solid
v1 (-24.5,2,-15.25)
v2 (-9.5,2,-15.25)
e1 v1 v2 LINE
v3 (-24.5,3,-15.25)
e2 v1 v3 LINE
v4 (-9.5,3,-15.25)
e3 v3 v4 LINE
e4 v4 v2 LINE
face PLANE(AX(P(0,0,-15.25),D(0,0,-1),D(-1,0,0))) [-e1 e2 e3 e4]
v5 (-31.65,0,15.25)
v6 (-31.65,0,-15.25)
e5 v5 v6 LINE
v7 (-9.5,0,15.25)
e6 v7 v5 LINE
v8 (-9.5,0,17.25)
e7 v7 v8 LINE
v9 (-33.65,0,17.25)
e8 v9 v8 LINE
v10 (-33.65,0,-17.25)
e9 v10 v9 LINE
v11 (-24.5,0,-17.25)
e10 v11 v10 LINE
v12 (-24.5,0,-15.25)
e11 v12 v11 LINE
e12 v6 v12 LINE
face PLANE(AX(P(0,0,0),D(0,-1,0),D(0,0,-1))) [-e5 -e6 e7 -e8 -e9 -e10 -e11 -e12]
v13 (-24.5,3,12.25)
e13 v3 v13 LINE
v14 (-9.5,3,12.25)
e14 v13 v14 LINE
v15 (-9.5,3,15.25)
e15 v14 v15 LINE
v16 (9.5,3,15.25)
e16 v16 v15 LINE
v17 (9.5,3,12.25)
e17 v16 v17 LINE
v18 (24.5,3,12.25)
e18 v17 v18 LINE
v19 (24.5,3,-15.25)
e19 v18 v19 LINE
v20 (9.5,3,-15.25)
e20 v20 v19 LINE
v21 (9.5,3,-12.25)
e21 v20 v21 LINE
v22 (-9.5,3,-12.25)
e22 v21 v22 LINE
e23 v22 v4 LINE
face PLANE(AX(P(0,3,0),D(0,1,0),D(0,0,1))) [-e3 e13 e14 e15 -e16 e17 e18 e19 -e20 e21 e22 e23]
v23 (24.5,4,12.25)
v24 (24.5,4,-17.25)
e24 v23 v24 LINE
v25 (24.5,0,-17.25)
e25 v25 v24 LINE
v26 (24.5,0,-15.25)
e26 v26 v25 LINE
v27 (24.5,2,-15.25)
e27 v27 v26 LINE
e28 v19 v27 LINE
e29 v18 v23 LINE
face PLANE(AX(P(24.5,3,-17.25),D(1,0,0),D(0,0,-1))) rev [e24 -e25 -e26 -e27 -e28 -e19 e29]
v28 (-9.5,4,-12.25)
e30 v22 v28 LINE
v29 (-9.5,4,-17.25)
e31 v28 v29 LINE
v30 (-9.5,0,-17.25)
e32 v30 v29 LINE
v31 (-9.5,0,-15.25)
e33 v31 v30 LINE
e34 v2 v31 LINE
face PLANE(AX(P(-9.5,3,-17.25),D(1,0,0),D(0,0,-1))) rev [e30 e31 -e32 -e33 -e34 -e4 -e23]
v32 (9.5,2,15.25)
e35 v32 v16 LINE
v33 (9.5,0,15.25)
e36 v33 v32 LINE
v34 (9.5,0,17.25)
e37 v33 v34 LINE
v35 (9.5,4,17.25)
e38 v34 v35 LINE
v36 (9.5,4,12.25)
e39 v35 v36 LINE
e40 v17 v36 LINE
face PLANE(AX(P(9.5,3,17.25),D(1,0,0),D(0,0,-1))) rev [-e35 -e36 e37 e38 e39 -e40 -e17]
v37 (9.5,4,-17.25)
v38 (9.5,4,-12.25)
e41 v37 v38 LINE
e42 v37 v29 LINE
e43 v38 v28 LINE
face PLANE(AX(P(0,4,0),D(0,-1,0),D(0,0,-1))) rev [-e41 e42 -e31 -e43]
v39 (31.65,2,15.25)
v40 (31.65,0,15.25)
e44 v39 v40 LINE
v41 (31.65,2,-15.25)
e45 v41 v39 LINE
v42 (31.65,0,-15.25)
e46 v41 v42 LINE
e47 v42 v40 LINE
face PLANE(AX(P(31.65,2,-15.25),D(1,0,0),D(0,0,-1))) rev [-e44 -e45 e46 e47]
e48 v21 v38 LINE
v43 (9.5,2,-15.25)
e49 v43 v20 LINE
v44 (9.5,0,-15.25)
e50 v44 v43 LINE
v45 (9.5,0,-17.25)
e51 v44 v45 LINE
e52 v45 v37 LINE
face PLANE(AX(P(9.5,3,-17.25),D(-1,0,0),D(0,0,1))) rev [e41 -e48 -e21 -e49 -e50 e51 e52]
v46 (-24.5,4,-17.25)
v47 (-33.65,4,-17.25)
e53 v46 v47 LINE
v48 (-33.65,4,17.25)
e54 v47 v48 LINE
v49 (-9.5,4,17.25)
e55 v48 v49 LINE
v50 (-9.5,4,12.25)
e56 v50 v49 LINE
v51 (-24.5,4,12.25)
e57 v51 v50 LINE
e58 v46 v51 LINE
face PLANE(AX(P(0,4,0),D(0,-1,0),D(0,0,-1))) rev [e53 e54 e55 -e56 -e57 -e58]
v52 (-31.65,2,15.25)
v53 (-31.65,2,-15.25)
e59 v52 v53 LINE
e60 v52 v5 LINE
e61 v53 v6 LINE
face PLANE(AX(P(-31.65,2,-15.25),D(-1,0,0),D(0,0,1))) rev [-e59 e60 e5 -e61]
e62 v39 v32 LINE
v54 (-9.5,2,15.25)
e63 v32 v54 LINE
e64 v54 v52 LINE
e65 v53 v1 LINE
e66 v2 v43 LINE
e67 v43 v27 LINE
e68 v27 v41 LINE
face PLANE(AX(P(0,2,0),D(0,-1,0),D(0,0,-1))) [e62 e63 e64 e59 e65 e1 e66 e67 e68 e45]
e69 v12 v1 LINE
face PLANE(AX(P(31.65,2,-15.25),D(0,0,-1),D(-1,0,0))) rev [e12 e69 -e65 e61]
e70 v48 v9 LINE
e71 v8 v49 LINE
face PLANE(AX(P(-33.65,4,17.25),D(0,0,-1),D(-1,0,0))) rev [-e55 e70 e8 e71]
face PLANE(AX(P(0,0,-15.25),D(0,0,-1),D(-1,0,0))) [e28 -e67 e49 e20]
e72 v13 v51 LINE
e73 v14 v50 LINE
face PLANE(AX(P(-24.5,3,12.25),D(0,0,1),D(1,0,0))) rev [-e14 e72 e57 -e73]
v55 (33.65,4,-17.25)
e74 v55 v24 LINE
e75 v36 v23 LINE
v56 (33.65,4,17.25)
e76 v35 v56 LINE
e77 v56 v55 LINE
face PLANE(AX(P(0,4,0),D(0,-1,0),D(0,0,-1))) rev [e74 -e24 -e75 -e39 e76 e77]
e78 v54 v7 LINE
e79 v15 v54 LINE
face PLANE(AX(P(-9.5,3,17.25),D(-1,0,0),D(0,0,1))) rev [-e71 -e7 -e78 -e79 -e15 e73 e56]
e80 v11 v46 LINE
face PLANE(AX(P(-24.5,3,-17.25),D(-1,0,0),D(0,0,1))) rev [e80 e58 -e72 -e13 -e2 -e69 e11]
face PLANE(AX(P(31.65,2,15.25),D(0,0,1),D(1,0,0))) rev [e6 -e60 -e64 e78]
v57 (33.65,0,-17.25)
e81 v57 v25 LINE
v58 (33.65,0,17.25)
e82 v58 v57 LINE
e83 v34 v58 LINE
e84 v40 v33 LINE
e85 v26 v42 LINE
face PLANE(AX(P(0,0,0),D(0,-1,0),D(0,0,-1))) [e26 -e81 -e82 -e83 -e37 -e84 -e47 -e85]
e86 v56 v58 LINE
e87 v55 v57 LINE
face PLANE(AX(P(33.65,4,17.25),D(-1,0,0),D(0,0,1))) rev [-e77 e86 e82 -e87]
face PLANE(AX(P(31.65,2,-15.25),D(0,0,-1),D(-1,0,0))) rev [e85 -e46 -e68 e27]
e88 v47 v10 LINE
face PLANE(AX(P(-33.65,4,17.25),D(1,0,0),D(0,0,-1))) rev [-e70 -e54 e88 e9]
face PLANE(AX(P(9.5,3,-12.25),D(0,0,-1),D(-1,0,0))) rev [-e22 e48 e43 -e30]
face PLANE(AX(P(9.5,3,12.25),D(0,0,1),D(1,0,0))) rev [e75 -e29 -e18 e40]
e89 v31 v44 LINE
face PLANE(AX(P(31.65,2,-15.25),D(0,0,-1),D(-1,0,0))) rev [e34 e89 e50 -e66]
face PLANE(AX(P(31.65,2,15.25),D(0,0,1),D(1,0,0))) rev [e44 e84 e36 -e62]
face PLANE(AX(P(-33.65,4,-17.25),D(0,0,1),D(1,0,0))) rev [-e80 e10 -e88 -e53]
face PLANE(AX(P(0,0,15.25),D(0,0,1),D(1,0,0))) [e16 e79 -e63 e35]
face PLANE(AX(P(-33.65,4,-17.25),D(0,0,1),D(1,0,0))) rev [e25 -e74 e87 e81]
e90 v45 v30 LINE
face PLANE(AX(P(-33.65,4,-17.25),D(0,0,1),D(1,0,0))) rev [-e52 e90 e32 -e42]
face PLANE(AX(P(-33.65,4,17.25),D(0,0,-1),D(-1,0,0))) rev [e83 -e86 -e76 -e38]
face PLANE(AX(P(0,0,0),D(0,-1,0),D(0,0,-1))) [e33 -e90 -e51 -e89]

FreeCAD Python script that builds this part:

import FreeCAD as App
import Part
import Sketcher
from FreeCAD import Vector
Q = App.Units.Quantity

doc = App.newDocument("Part")
body = doc.addObject("PartDesign::Body", "Body")

sketch1 = doc.addObject("Sketcher::SketchObject", "Sketch")
body.addObject(sketch1)
sketch1.AttachmentSupport = (doc.XZ_Plane, [""])
sketch1.MapMode = "FlatFace"
sketch1.addGeometry([
    Part.LineSegment(Vector(-34, -17, 0), Vector(-34, 17, 0)),
    Part.LineSegment(Vector(-34, 17, 0), Vector(34, 17, 0)),
    Part.LineSegment(Vector(34, 17, 0), Vector(34, -17, 0)),
    Part.LineSegment(Vector(34, -17, 0), Vector(-34, -17, 0)),
], False)
sketch1.addConstraint([
    Sketcher.Constraint("Coincident", 0, 2, 1, 1),
    Sketcher.Constraint("Coincident", 1, 2, 2, 1),
    Sketcher.Constraint("Coincident", 2, 2, 3, 1),
    Sketcher.Constraint("Coincident", 3, 2, 0, 1),
    Sketcher.Constraint("Vertical", 0),
    Sketcher.Constraint("Horizontal", 1),
    Sketcher.Constraint("Vertical", 2),
    Sketcher.Constraint("Horizontal", 3),
    Sketcher.Constraint("Symmetric", 0, 2, 2, 2, -1, 1),
    Sketcher.Constraint("DistanceX", 1, 1, 1, 2, Q("67.3 mm")),
    Sketcher.Constraint("DistanceY", 0, 1, 0, 2, Q("34.5 mm")),
])
pad1 = doc.addObject("PartDesign::Pad", "Pad")
body.addObject(pad1)
pad1.Profile = sketch1
pad1.Length = 4
pad1.Reversed = True

sketch2 = doc.addObject("Sketcher::SketchObject", "Sketch001")
body.addObject(sketch2)
sketch2.AttachmentSupport = (doc.XZ_Plane, [""])
sketch2.MapMode = "FlatFace"
sketch2.AttachmentOffset = App.Placement(Vector(0, 0, -4), App.Rotation())
sketch2.addGeometry([
    Part.LineSegment(Vector(-24, -17, 0), Vector(-24, 12, 0)),
    Part.LineSegment(Vector(-24, 12, 0), Vector(-10, 12, 0)),
    Part.LineSegment(Vector(-10, 12, 0), Vector(-10, -17, 0)),
    Part.LineSegment(Vector(-10, -17, 0), Vector(-24, -17, 0)),
    Part.LineSegment(Vector(10, -17, 0), Vector(10, 12, 0)),
    Part.LineSegment(Vector(10, 12, 0), Vector(24, 12, 0)),
    Part.LineSegment(Vector(24, 12, 0), Vector(24, -17, 0)),
    Part.LineSegment(Vector(24, -17, 0), Vector(10, -17, 0)),
], False)
sketch2.addConstraint([
    Sketcher.Constraint("Coincident", 0, 2, 1, 1),
    Sketcher.Constraint("Coincident", 1, 2, 2, 1),
    Sketcher.Constraint("Coincident", 2, 2, 3, 1),
    Sketcher.Constraint("Coincident", 3, 2, 0, 1),
    Sketcher.Constraint("Coincident", 4, 2, 5, 1),
    Sketcher.Constraint("Coincident", 5, 2, 6, 1),
    Sketcher.Constraint("Coincident", 6, 2, 7, 1),
    Sketcher.Constraint("Coincident", 7, 2, 4, 1),
    Sketcher.Constraint("Vertical", 0),
    Sketcher.Constraint("Horizontal", 1),
    Sketcher.Constraint("Vertical", 2),
    Sketcher.Constraint("Horizontal", 3),
    Sketcher.Constraint("Vertical", 4),
    Sketcher.Constraint("Horizontal", 5),
    Sketcher.Constraint("Vertical", 6),
    Sketcher.Constraint("Horizontal", 7),
    Sketcher.Constraint("Symmetric", 1, 2, 4, 2, -2),
    Sketcher.Constraint("Symmetric", 3, 2, 6, 2, -2),
    Sketcher.Constraint("DistanceX", 1, 1, 1, 2, Q("15 mm")),
    Sketcher.Constraint("DistanceY", 0, 1, 0, 2, Q("29.5 mm")),
    Sketcher.Constraint("DistanceX", 1, 2, 4, 2, Q("19 mm")),
    Sketcher.Constraint("DistanceY", -1, 1, 0, 2, Q("12.25 mm")),
])
pocket1 = doc.addObject("PartDesign::Pocket", "Pocket")
body.addObject(pocket1)
pocket1.Profile = sketch2
pocket1.Length = 1
pocket1.Reversed = True

sketch3 = doc.addObject("Sketcher::SketchObject", "Sketch002")
body.addObject(sketch3)
sketch3.AttachmentSupport = (doc.XZ_Plane, [""])
sketch3.MapMode = "FlatFace"
sketch3.addGeometry([
    Part.LineSegment(Vector(32, -15, 0), Vector(32, 15, 0)),
    Part.LineSegment(Vector(32, 15, 0), Vector(-32, 15, 0)),
    Part.LineSegment(Vector(-32, 15, 0), Vector(-32, -15, 0)),
    Part.LineSegment(Vector(-32, -15, 0), Vector(32, -15, 0)),
], False)
sketch3.addConstraint([
    Sketcher.Constraint("Coincident", 0, 2, 1, 1),
    Sketcher.Constraint("Coincident", 1, 2, 2, 1),
    Sketcher.Constraint("Coincident", 2, 2, 3, 1),
    Sketcher.Constraint("Coincident", 3, 2, 0, 1),
    Sketcher.Constraint("Vertical", 0),
    Sketcher.Constraint("Horizontal", 1),
    Sketcher.Constraint("Vertical", 2),
    Sketcher.Constraint("Horizontal", 3),
    Sketcher.Constraint("Symmetric", 0, 2, 2, 2, -1, 1),
    Sketcher.Constraint("DistanceX", 1, 2, 1, 1, Q("63.3 mm")),
    Sketcher.Constraint("DistanceY", 0, 1, 0, 2, Q("30.5 mm")),
])
pocket2 = doc.addObject("PartDesign::Pocket", "Pocket001")
body.addObject(pocket2)
pocket2.Profile = sketch3
pocket2.Length = 2

sketch4 = doc.addObject("Sketcher::SketchObject", "Sketch003")
body.addObject(sketch4)
sketch4.AttachmentSupport = (doc.XY_Plane, [""])
sketch4.MapMode = "FlatFace"
sketch4.AttachmentOffset = App.Placement(Vector(0, 0, -17.25), App.Rotation())
sketch4.addGeometry([
    Part.LineSegment(Vector(24.5, 3, 0), Vector(24.5, 0, 0)),
    Part.LineSegment(Vector(24.5, 0, 0), Vector(9.5, 0, 0)),
    Part.LineSegment(Vector(9.5, 0, 0), Vector(9.5, 3, 0)),
    Part.LineSegment(Vector(9.5, 3, 0), Vector(24.5, 3, 0)),
    Part.LineSegment(Vector(-9.5, 3, 0), Vector(-9.5, 0, 0)),
    Part.LineSegment(Vector(-9.5, 0, 0), Vector(-24.5, 0, 0)),
    Part.LineSegment(Vector(-24.5, 0, 0), Vector(-24.5, 3, 0)),
    Part.LineSegment(Vector(-24.5, 3, 0), Vector(-9.5, 3, 0)),
], False)
sketch4.addConstraint([
    Sketcher.Constraint("Coincident", 0, 2, 1, 1),
    Sketcher.Constraint("Coincident", 1, 2, 2, 1),
    Sketcher.Constraint("Coincident", 2, 2, 3, 1),
    Sketcher.Constraint("Coincident", 3, 2, 0, 1),
    Sketcher.Constraint("Coincident", 4, 2, 5, 1),
    Sketcher.Constraint("Coincident", 5, 2, 6, 1),
    Sketcher.Constraint("Coincident", 6, 2, 7, 1),
    Sketcher.Constraint("Coincident", 7, 2, 4, 1),
    Sketcher.Constraint("Vertical", 0),
    Sketcher.Constraint("Horizontal", 1),
    Sketcher.Constraint("Vertical", 2),
    Sketcher.Constraint("Horizontal", 3),
    Sketcher.Constraint("Vertical", 4),
    Sketcher.Constraint("Horizontal", 5),
    Sketcher.Constraint("Vertical", 6),
    Sketcher.Constraint("Horizontal", 7),
    Sketcher.Constraint("Symmetric", 1, 2, 4, 2, -1, 1),
    Sketcher.Constraint("Symmetric", 0, 2, 5, 2, -2),
    Sketcher.Constraint("Horizontal", 3, 2, 6, 2),
    Sketcher.Constraint("DistanceX", 1, 2, 1, 1, Q("15 mm")),
    Sketcher.Constraint("DistanceY", 0, 2, 0, 1, Q("3 mm")),
    Sketcher.Constraint("DistanceX", 4, 2, 1, 2, Q("19 mm")),
])
pocket3 = doc.addObject("PartDesign::Pocket", "Pocket002")
body.addObject(pocket3)
pocket3.Profile = sketch4
pocket3.Length = 2
pocket3.Reversed = True

sketch5 = doc.addObject("Sketcher::SketchObject", "Sketch004")
body.addObject(sketch5)
sketch5.AttachmentSupport = (doc.XZ_Plane, [""])
sketch5.MapMode = "FlatFace"
sketch5.AttachmentOffset = App.Placement(Vector(0, 0, -4), App.Rotation())
sketch5.addGeometry([
    Part.LineSegment(Vector(-10, -12, 0), Vector(-10, 17, 0)),
    Part.LineSegment(Vector(-10, 17, 0), Vector(10, 17, 0)),
    Part.LineSegment(Vector(10, 17, 0), Vector(10, -12, 0)),
    Part.LineSegment(Vector(10, -12, 0), Vector(-10, -12, 0)),
], False)
sketch5.addConstraint([
    Sketcher.Constraint("Coincident", 0, 2, 1, 1),
    Sketcher.Constraint("Coincident", 1, 2, 2, 1),
    Sketcher.Constraint("Coincident", 2, 2, 3, 1),
    Sketcher.Constraint("Coincident", 3, 2, 0, 1),
    Sketcher.Constraint("Vertical", 0),
    Sketcher.Constraint("Horizontal", 1),
    Sketcher.Constraint("Vertical", 2),
    Sketcher.Constraint("Horizontal", 3),
    Sketcher.Constraint("DistanceX", 1, 1, 1, 2, Q("19 mm")),
    Sketcher.Constraint("DistanceY", 0, 1, 0, 2, Q("29.5 mm")),
    Sketcher.Constraint("DistanceX", 0, 2, -1, 1, Q("9.5 mm")),
    Sketcher.Constraint("DistanceY", -1, 1, 0, 2, Q("17.25 mm")),
])
pocket4 = doc.addObject("PartDesign::Pocket", "Pocket003")
body.addObject(pocket4)
pocket4.Profile = sketch5
pocket4.Length = 1
pocket4.Reversed = True

sketch6 = doc.addObject("Sketcher::SketchObject", "Sketch005")
body.addObject(sketch6)
sketch6.AttachmentSupport = (doc.XY_Plane, [""])
sketch6.MapMode = "FlatFace"
sketch6.AttachmentOffset = App.Placement(Vector(0, 0, 17.25), App.Rotation())
sketch6.addGeometry([
    Part.LineSegment(Vector(-9.5, 3, 0), Vector(-9.5, 0, 0)),
    Part.LineSegment(Vector(-9.5, 0, 0), Vector(9.5, 0, 0)),
    Part.LineSegment(Vector(9.5, 0, 0), Vector(9.5, 3, 0)),
    Part.LineSegment(Vector(9.5, 3, 0), Vector(-9.5, 3, 0)),
], False)
sketch6.addConstraint([
    Sketcher.Constraint("Coincident", 0, 2, 1, 1),
    Sketcher.Constraint("Coincident", 1, 2, 2, 1),
    Sketcher.Constraint("Coincident", 2, 2, 3, 1),
    Sketcher.Constraint("Coincident", 3, 2, 0, 1),
    Sketcher.Constraint("Vertical", 0),
    Sketcher.Constraint("Horizontal", 1),
    Sketcher.Constraint("Vertical", 2),
    Sketcher.Constraint("Horizontal", 3),
    Sketcher.Constraint("Symmetric", 0, 2, 1, 2, -1, 1),
    Sketcher.Constraint("DistanceX", 1, 1, 1, 2, Q("19 mm")),
    Sketcher.Constraint("DistanceY", 0, 2, 0, 1, Q("3 mm")),
])
pocket5 = doc.addObject("PartDesign::Pocket", "Pocket004")
body.addObject(pocket5)
pocket5.Profile = sketch6
pocket5.Length = 2

doc.recompute()
